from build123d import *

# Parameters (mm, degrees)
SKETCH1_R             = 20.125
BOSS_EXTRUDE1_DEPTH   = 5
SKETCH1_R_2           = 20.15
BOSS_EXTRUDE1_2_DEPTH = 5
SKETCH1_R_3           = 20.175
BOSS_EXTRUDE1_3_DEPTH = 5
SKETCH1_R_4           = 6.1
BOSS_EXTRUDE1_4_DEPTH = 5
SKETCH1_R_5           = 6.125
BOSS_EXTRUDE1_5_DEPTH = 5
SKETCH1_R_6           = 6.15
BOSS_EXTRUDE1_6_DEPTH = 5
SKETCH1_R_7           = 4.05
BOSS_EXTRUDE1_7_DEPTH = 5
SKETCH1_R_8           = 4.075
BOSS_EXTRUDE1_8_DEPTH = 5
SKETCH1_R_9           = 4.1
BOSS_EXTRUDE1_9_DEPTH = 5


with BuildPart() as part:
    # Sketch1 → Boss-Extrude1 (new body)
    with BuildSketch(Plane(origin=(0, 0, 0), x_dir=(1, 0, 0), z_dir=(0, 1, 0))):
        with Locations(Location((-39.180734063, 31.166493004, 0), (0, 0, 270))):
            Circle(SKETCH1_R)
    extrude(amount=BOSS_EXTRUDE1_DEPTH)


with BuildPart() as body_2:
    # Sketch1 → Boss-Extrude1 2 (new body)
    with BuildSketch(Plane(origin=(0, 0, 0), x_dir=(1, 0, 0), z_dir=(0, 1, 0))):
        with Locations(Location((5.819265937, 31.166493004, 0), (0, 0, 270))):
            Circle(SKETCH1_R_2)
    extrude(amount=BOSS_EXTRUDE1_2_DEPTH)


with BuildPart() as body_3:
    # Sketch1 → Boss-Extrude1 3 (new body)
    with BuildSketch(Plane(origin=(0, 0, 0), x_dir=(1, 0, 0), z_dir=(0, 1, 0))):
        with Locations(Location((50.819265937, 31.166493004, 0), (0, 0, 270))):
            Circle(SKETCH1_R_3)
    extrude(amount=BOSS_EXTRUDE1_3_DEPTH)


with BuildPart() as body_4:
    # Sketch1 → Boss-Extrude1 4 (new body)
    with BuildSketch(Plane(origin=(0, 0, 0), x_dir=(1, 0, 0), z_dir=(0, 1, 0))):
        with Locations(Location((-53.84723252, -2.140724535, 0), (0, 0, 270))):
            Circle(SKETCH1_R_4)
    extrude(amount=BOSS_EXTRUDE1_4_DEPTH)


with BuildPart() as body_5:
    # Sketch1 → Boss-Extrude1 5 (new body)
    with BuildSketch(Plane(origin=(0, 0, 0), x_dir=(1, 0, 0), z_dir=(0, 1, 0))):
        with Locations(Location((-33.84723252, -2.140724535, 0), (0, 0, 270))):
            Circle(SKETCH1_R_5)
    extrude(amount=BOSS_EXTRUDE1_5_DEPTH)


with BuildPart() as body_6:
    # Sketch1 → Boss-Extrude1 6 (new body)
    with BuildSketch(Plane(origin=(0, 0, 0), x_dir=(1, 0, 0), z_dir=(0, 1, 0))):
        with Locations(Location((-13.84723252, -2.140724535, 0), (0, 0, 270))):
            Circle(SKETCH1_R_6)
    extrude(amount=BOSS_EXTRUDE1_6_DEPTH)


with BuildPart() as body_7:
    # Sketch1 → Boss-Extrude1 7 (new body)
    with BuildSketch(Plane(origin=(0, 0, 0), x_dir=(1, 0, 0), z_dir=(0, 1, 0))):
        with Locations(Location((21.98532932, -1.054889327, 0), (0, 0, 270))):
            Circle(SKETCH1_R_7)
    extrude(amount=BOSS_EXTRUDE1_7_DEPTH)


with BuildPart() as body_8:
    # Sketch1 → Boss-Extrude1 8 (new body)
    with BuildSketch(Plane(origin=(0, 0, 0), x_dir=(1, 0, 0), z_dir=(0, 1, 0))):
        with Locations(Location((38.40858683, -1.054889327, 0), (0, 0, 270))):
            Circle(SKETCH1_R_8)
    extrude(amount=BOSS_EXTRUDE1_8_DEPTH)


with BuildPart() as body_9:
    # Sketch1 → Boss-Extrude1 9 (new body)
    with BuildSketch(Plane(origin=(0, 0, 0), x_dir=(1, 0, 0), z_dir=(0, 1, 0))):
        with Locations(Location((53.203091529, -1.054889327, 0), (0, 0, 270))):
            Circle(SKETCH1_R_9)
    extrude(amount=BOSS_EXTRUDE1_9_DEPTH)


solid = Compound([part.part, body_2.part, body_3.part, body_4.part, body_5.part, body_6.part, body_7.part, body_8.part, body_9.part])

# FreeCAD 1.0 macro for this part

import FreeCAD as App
import Part
import Sketcher

doc = App.newDocument("Part")
body = doc.addObject("PartDesign::Body", "Body")

# Sketch on XZ plane
sketch1 = body.newObject("Sketcher::SketchObject", "Sketch")
sketch1.AttachmentSupport = (doc.getObject("XZ_Plane"), [""])
sketch1.MapMode = "FlatFace"
sketch1.addGeometry(Part.Circle(App.Vector(-39.180734, -31.166493, 0), App.Vector(0, 0, 1), 20.125), False)
sketch1.addConstraint([
    Sketcher.Constraint("Diameter", 0, 40.25),
    Sketcher.Constraint("DistanceX", 0, 3, -1, 1, 39.180734),
    Sketcher.Constraint("DistanceY", 0, 3, -1, 1, 31.166493),
])
pad1 = body.newObject("PartDesign::Pad", "Pad")
pad1.Profile = sketch1
pad1.Length = 5
pad1.Reversed = True
body2 = doc.addObject("PartDesign::Body", "Body001")

# Sketch on XZ plane
sketch2 = body2.newObject("Sketcher::SketchObject", "Sketch001")
sketch2.AttachmentSupport = (doc.getObject("XZ_Plane001"), [""])
sketch2.MapMode = "FlatFace"
sketch2.addGeometry(Part.Circle(App.Vector(5.819266, -31.166493, 0), App.Vector(0, 0, 1), 20.15), False)
sketch2.addConstraint([
    Sketcher.Constraint("Diameter", 0, 40.3),
    Sketcher.Constraint("DistanceX", -1, 1, 0, 3, 5.819266),
    Sketcher.Constraint("DistanceY", 0, 3, -1, 1, 31.166493),
])
pad2 = body2.newObject("PartDesign::Pad", "Pad001")
pad2.Profile = sketch2
pad2.Length = 5
pad2.Reversed = True
body3 = doc.addObject("PartDesign::Body", "Body002")

# Sketch on XZ plane
sketch3 = body3.newObject("Sketcher::SketchObject", "Sketch002")
sketch3.AttachmentSupport = (doc.getObject("XZ_Plane002"), [""])
sketch3.MapMode = "FlatFace"
sketch3.addGeometry(Part.Circle(App.Vector(50.819266, -31.166493, 0), App.Vector(0, 0, 1), 20.175), False)
sketch3.addConstraint([
    Sketcher.Constraint("Diameter", 0, 40.35),
    Sketcher.Constraint("DistanceX", -1, 1, 0, 3, 50.819266),
    Sketcher.Constraint("DistanceY", 0, 3, -1, 1, 31.166493),
])
pad3 = body3.newObject("PartDesign::Pad", "Pad002")
pad3.Profile = sketch3
pad3.Length = 5
pad3.Reversed = True
body4 = doc.addObject("PartDesign::Body", "Body003")

# Sketch on XZ plane
sketch4 = body4.newObject("Sketcher::SketchObject", "Sketch003")
sketch4.AttachmentSupport = (doc.getObject("XZ_Plane003"), [""])
sketch4.MapMode = "FlatFace"
sketch4.addGeometry(Part.Circle(App.Vector(-53.847233, 2.140725, 0), App.Vector(0, 0, 1), 6.1), False)
sketch4.addConstraint([
    Sketcher.Constraint("Diameter", 0, 12.2),
    Sketcher.Constraint("DistanceX", 0, 3, -1, 1, 53.847233),
    Sketcher.Constraint("DistanceY", -1, 1, 0, 3, 2.140725),
])
pad4 = body4.newObject("PartDesign::Pad", "Pad003")
pad4.Profile = sketch4
pad4.Length = 5
pad4.Reversed = True
body5 = doc.addObject("PartDesign::Body", "Body004")

# Sketch on XZ plane
sketch5 = body5.newObject("Sketcher::SketchObject", "Sketch004")
sketch5.AttachmentSupport = (doc.getObject("XZ_Plane004"), [""])
sketch5.MapMode = "FlatFace"
sketch5.addGeometry(Part.Circle(App.Vector(-33.847233, 2.140725, 0), App.Vector(0, 0, 1), 6.125), False)
sketch5.addConstraint([
    Sketcher.Constraint("Diameter", 0, 12.25),
    Sketcher.Constraint("DistanceX", 0, 3, -1, 1, 33.847233),
    Sketcher.Constraint("DistanceY", -1, 1, 0, 3, 2.140725),
])
pad5 = body5.newObject("PartDesign::Pad", "Pad004")
pad5.Profile = sketch5
pad5.Length = 5
pad5.Reversed = True
body6 = doc.addObject("PartDesign::Body", "Body005")

# Sketch on XZ plane
sketch6 = body6.newObject("Sketcher::SketchObject", "Sketch005")
sketch6.AttachmentSupport = (doc.getObject("XZ_Plane005"), [""])
sketch6.MapMode = "FlatFace"
sketch6.addGeometry(Part.Circle(App.Vector(-13.847233, 2.140725, 0), App.Vector(0, 0, 1), 6.15), False)
sketch6.addConstraint([
    Sketcher.Constraint("Diameter", 0, 12.3),
    Sketcher.Constraint("DistanceX", 0, 3, -1, 1, 13.847233),
    Sketcher.Constraint("DistanceY", -1, 1, 0, 3, 2.140725),
])
pad6 = body6.newObject("PartDesign::Pad", "Pad005")
pad6.Profile = sketch6
pad6.Length = 5
pad6.Reversed = True
body7 = doc.addObject("PartDesign::Body", "Body006")

# Sketch on XZ plane
sketch7 = body7.newObject("Sketcher::SketchObject", "Sketch006")
sketch7.AttachmentSupport = (doc.getObject("XZ_Plane006"), [""])
sketch7.MapMode = "FlatFace"
sketch7.addGeometry(Part.Circle(App.Vector(21.985329, 1.054889, 0), App.Vector(0, 0, 1), 4.05), False)
sketch7.addConstraint([
    Sketcher.Constraint("Diameter", 0, 8.1),
    Sketcher.Constraint("DistanceX", -1, 1, 0, 3, 21.985329),
    Sketcher.Constraint("DistanceY", -1, 1, 0, 3, 1.054889),
])
pad7 = body7.newObject("PartDesign::Pad", "Pad006")
pad7.Profile = sketch7
pad7.Length = 5
pad7.Reversed = True
body8 = doc.addObject("PartDesign::Body", "Body007")

# Sketch on XZ plane
sketch8 = body8.newObject("Sketcher::SketchObject", "Sketch007")
sketch8.AttachmentSupport = (doc.getObject("XZ_Plane007"), [""])
sketch8.MapMode = "FlatFace"
sketch8.addGeometry(Part.Circle(App.Vector(38.408587, 1.054889, 0), App.Vector(0, 0, 1), 4.075), False)
sketch8.addConstraint([
    Sketcher.Constraint("Diameter", 0, 8.15),
    Sketcher.Constraint("DistanceY", -1, 1, 0, 3, 1.054889),
    Sketcher.Constraint("DistanceX", -1, 1, 0, 3, 38.408587),
])
pad8 = body8.newObject("PartDesign::Pad", "Pad007")
pad8.Profile = sketch8
pad8.Length = 5
pad8.Reversed = True
body9 = doc.addObject("PartDesign::Body", "Body008")

# Sketch on XZ plane
sketch9 = body9.newObject("Sketcher::SketchObject", "Sketch008")
sketch9.AttachmentSupport = (doc.getObject("XZ_Plane008"), [""])
sketch9.MapMode = "FlatFace"
sketch9.addGeometry(Part.Circle(App.Vector(53.203092, 1.054889, 0), App.Vector(0, 0, 1), 4.1), False)
sketch9.addConstraint([
    Sketcher.Constraint("Diameter", 0, 8.2),
    Sketcher.Constraint("DistanceX", -1, 1, 0, 3, 53.203092),
    Sketcher.Constraint("DistanceY", -1, 1, 0, 3, 1.054889),
])
pad9 = body9.newObject("PartDesign::Pad", "Pad008")
pad9.Profile = sketch9
pad9.Length = 5
pad9.Reversed = True

doc.recompute()
